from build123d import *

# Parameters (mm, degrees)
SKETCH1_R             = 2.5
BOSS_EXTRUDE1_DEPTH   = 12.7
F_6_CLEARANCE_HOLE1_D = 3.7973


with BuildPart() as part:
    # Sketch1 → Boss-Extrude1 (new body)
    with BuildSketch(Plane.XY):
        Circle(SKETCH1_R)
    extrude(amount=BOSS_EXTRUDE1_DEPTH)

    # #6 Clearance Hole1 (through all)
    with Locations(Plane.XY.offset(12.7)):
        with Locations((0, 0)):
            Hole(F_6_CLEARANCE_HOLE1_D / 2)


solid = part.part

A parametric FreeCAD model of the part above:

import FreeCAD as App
import Part
import Sketcher
from FreeCAD import Vector

doc = App.newDocument("Part")
params = doc.addObject("Spreadsheet::Sheet", "Params")
for row, (alias, value) in enumerate([
    ("sketch1_diameter", "5 mm"),
    ("pad1_length", "12.7 mm"),
    ("hole_diameter", "3.7973 mm"),
], start=1):
    params.set(f"A{row}", alias)
    params.set(f"B{row}", "=" + value)
    params.setAlias(f"B{row}", alias)

body = doc.addObject("PartDesign::Body", "Body")

sketch1 = body.newObject("Sketcher::SketchObject", "Sketch")
sketch1.AttachmentSupport = (doc.getObject("XY_Plane"), [""])
sketch1.MapMode = "FlatFace"
sketch1.addGeometry(Part.Circle(Vector(0, 0, 0), Vector(0, 0, 1), 2.5), False)
sketch1.addConstraint([
    Sketcher.Constraint("Coincident", 0, 3, -1, 1),
    Sketcher.Constraint("Diameter", 0, 5.0),
])
sketch1.setExpression("Constraints[1]", "Params.sketch1_diameter")
pad1 = body.newObject("PartDesign::Pad", "Pad")
pad1.Profile = sketch1
pad1.setExpression("Length", "Params.pad1_length")

sketch2 = body.newObject("Sketcher::SketchObject", "Sketch001")
sketch2.AttachmentSupport = (doc.getObject("XY_Plane"), [""])
sketch2.MapMode = "FlatFace"
sketch2.AttachmentOffset = App.Placement(Vector(0, 0, 12.7), App.Rotation())
sketch2.addGeometry(Part.Circle(Vector(0, 0, 0), Vector(0, 0, 1), 1.9), False)
sketch2.addConstraint([
    Sketcher.Constraint("Coincident", 0, 3, -1, 1),
    Sketcher.Constraint("Diameter", 0, 3.7973),
])
doc.recompute()
hole = body.newObject("PartDesign::Hole", "Hole")
hole.Profile = sketch2
hole.ThreadType = "None"
hole.setExpression("Diameter", "Params.hole_diameter")
hole.DepthType = "ThroughAll"

doc.recompute()
